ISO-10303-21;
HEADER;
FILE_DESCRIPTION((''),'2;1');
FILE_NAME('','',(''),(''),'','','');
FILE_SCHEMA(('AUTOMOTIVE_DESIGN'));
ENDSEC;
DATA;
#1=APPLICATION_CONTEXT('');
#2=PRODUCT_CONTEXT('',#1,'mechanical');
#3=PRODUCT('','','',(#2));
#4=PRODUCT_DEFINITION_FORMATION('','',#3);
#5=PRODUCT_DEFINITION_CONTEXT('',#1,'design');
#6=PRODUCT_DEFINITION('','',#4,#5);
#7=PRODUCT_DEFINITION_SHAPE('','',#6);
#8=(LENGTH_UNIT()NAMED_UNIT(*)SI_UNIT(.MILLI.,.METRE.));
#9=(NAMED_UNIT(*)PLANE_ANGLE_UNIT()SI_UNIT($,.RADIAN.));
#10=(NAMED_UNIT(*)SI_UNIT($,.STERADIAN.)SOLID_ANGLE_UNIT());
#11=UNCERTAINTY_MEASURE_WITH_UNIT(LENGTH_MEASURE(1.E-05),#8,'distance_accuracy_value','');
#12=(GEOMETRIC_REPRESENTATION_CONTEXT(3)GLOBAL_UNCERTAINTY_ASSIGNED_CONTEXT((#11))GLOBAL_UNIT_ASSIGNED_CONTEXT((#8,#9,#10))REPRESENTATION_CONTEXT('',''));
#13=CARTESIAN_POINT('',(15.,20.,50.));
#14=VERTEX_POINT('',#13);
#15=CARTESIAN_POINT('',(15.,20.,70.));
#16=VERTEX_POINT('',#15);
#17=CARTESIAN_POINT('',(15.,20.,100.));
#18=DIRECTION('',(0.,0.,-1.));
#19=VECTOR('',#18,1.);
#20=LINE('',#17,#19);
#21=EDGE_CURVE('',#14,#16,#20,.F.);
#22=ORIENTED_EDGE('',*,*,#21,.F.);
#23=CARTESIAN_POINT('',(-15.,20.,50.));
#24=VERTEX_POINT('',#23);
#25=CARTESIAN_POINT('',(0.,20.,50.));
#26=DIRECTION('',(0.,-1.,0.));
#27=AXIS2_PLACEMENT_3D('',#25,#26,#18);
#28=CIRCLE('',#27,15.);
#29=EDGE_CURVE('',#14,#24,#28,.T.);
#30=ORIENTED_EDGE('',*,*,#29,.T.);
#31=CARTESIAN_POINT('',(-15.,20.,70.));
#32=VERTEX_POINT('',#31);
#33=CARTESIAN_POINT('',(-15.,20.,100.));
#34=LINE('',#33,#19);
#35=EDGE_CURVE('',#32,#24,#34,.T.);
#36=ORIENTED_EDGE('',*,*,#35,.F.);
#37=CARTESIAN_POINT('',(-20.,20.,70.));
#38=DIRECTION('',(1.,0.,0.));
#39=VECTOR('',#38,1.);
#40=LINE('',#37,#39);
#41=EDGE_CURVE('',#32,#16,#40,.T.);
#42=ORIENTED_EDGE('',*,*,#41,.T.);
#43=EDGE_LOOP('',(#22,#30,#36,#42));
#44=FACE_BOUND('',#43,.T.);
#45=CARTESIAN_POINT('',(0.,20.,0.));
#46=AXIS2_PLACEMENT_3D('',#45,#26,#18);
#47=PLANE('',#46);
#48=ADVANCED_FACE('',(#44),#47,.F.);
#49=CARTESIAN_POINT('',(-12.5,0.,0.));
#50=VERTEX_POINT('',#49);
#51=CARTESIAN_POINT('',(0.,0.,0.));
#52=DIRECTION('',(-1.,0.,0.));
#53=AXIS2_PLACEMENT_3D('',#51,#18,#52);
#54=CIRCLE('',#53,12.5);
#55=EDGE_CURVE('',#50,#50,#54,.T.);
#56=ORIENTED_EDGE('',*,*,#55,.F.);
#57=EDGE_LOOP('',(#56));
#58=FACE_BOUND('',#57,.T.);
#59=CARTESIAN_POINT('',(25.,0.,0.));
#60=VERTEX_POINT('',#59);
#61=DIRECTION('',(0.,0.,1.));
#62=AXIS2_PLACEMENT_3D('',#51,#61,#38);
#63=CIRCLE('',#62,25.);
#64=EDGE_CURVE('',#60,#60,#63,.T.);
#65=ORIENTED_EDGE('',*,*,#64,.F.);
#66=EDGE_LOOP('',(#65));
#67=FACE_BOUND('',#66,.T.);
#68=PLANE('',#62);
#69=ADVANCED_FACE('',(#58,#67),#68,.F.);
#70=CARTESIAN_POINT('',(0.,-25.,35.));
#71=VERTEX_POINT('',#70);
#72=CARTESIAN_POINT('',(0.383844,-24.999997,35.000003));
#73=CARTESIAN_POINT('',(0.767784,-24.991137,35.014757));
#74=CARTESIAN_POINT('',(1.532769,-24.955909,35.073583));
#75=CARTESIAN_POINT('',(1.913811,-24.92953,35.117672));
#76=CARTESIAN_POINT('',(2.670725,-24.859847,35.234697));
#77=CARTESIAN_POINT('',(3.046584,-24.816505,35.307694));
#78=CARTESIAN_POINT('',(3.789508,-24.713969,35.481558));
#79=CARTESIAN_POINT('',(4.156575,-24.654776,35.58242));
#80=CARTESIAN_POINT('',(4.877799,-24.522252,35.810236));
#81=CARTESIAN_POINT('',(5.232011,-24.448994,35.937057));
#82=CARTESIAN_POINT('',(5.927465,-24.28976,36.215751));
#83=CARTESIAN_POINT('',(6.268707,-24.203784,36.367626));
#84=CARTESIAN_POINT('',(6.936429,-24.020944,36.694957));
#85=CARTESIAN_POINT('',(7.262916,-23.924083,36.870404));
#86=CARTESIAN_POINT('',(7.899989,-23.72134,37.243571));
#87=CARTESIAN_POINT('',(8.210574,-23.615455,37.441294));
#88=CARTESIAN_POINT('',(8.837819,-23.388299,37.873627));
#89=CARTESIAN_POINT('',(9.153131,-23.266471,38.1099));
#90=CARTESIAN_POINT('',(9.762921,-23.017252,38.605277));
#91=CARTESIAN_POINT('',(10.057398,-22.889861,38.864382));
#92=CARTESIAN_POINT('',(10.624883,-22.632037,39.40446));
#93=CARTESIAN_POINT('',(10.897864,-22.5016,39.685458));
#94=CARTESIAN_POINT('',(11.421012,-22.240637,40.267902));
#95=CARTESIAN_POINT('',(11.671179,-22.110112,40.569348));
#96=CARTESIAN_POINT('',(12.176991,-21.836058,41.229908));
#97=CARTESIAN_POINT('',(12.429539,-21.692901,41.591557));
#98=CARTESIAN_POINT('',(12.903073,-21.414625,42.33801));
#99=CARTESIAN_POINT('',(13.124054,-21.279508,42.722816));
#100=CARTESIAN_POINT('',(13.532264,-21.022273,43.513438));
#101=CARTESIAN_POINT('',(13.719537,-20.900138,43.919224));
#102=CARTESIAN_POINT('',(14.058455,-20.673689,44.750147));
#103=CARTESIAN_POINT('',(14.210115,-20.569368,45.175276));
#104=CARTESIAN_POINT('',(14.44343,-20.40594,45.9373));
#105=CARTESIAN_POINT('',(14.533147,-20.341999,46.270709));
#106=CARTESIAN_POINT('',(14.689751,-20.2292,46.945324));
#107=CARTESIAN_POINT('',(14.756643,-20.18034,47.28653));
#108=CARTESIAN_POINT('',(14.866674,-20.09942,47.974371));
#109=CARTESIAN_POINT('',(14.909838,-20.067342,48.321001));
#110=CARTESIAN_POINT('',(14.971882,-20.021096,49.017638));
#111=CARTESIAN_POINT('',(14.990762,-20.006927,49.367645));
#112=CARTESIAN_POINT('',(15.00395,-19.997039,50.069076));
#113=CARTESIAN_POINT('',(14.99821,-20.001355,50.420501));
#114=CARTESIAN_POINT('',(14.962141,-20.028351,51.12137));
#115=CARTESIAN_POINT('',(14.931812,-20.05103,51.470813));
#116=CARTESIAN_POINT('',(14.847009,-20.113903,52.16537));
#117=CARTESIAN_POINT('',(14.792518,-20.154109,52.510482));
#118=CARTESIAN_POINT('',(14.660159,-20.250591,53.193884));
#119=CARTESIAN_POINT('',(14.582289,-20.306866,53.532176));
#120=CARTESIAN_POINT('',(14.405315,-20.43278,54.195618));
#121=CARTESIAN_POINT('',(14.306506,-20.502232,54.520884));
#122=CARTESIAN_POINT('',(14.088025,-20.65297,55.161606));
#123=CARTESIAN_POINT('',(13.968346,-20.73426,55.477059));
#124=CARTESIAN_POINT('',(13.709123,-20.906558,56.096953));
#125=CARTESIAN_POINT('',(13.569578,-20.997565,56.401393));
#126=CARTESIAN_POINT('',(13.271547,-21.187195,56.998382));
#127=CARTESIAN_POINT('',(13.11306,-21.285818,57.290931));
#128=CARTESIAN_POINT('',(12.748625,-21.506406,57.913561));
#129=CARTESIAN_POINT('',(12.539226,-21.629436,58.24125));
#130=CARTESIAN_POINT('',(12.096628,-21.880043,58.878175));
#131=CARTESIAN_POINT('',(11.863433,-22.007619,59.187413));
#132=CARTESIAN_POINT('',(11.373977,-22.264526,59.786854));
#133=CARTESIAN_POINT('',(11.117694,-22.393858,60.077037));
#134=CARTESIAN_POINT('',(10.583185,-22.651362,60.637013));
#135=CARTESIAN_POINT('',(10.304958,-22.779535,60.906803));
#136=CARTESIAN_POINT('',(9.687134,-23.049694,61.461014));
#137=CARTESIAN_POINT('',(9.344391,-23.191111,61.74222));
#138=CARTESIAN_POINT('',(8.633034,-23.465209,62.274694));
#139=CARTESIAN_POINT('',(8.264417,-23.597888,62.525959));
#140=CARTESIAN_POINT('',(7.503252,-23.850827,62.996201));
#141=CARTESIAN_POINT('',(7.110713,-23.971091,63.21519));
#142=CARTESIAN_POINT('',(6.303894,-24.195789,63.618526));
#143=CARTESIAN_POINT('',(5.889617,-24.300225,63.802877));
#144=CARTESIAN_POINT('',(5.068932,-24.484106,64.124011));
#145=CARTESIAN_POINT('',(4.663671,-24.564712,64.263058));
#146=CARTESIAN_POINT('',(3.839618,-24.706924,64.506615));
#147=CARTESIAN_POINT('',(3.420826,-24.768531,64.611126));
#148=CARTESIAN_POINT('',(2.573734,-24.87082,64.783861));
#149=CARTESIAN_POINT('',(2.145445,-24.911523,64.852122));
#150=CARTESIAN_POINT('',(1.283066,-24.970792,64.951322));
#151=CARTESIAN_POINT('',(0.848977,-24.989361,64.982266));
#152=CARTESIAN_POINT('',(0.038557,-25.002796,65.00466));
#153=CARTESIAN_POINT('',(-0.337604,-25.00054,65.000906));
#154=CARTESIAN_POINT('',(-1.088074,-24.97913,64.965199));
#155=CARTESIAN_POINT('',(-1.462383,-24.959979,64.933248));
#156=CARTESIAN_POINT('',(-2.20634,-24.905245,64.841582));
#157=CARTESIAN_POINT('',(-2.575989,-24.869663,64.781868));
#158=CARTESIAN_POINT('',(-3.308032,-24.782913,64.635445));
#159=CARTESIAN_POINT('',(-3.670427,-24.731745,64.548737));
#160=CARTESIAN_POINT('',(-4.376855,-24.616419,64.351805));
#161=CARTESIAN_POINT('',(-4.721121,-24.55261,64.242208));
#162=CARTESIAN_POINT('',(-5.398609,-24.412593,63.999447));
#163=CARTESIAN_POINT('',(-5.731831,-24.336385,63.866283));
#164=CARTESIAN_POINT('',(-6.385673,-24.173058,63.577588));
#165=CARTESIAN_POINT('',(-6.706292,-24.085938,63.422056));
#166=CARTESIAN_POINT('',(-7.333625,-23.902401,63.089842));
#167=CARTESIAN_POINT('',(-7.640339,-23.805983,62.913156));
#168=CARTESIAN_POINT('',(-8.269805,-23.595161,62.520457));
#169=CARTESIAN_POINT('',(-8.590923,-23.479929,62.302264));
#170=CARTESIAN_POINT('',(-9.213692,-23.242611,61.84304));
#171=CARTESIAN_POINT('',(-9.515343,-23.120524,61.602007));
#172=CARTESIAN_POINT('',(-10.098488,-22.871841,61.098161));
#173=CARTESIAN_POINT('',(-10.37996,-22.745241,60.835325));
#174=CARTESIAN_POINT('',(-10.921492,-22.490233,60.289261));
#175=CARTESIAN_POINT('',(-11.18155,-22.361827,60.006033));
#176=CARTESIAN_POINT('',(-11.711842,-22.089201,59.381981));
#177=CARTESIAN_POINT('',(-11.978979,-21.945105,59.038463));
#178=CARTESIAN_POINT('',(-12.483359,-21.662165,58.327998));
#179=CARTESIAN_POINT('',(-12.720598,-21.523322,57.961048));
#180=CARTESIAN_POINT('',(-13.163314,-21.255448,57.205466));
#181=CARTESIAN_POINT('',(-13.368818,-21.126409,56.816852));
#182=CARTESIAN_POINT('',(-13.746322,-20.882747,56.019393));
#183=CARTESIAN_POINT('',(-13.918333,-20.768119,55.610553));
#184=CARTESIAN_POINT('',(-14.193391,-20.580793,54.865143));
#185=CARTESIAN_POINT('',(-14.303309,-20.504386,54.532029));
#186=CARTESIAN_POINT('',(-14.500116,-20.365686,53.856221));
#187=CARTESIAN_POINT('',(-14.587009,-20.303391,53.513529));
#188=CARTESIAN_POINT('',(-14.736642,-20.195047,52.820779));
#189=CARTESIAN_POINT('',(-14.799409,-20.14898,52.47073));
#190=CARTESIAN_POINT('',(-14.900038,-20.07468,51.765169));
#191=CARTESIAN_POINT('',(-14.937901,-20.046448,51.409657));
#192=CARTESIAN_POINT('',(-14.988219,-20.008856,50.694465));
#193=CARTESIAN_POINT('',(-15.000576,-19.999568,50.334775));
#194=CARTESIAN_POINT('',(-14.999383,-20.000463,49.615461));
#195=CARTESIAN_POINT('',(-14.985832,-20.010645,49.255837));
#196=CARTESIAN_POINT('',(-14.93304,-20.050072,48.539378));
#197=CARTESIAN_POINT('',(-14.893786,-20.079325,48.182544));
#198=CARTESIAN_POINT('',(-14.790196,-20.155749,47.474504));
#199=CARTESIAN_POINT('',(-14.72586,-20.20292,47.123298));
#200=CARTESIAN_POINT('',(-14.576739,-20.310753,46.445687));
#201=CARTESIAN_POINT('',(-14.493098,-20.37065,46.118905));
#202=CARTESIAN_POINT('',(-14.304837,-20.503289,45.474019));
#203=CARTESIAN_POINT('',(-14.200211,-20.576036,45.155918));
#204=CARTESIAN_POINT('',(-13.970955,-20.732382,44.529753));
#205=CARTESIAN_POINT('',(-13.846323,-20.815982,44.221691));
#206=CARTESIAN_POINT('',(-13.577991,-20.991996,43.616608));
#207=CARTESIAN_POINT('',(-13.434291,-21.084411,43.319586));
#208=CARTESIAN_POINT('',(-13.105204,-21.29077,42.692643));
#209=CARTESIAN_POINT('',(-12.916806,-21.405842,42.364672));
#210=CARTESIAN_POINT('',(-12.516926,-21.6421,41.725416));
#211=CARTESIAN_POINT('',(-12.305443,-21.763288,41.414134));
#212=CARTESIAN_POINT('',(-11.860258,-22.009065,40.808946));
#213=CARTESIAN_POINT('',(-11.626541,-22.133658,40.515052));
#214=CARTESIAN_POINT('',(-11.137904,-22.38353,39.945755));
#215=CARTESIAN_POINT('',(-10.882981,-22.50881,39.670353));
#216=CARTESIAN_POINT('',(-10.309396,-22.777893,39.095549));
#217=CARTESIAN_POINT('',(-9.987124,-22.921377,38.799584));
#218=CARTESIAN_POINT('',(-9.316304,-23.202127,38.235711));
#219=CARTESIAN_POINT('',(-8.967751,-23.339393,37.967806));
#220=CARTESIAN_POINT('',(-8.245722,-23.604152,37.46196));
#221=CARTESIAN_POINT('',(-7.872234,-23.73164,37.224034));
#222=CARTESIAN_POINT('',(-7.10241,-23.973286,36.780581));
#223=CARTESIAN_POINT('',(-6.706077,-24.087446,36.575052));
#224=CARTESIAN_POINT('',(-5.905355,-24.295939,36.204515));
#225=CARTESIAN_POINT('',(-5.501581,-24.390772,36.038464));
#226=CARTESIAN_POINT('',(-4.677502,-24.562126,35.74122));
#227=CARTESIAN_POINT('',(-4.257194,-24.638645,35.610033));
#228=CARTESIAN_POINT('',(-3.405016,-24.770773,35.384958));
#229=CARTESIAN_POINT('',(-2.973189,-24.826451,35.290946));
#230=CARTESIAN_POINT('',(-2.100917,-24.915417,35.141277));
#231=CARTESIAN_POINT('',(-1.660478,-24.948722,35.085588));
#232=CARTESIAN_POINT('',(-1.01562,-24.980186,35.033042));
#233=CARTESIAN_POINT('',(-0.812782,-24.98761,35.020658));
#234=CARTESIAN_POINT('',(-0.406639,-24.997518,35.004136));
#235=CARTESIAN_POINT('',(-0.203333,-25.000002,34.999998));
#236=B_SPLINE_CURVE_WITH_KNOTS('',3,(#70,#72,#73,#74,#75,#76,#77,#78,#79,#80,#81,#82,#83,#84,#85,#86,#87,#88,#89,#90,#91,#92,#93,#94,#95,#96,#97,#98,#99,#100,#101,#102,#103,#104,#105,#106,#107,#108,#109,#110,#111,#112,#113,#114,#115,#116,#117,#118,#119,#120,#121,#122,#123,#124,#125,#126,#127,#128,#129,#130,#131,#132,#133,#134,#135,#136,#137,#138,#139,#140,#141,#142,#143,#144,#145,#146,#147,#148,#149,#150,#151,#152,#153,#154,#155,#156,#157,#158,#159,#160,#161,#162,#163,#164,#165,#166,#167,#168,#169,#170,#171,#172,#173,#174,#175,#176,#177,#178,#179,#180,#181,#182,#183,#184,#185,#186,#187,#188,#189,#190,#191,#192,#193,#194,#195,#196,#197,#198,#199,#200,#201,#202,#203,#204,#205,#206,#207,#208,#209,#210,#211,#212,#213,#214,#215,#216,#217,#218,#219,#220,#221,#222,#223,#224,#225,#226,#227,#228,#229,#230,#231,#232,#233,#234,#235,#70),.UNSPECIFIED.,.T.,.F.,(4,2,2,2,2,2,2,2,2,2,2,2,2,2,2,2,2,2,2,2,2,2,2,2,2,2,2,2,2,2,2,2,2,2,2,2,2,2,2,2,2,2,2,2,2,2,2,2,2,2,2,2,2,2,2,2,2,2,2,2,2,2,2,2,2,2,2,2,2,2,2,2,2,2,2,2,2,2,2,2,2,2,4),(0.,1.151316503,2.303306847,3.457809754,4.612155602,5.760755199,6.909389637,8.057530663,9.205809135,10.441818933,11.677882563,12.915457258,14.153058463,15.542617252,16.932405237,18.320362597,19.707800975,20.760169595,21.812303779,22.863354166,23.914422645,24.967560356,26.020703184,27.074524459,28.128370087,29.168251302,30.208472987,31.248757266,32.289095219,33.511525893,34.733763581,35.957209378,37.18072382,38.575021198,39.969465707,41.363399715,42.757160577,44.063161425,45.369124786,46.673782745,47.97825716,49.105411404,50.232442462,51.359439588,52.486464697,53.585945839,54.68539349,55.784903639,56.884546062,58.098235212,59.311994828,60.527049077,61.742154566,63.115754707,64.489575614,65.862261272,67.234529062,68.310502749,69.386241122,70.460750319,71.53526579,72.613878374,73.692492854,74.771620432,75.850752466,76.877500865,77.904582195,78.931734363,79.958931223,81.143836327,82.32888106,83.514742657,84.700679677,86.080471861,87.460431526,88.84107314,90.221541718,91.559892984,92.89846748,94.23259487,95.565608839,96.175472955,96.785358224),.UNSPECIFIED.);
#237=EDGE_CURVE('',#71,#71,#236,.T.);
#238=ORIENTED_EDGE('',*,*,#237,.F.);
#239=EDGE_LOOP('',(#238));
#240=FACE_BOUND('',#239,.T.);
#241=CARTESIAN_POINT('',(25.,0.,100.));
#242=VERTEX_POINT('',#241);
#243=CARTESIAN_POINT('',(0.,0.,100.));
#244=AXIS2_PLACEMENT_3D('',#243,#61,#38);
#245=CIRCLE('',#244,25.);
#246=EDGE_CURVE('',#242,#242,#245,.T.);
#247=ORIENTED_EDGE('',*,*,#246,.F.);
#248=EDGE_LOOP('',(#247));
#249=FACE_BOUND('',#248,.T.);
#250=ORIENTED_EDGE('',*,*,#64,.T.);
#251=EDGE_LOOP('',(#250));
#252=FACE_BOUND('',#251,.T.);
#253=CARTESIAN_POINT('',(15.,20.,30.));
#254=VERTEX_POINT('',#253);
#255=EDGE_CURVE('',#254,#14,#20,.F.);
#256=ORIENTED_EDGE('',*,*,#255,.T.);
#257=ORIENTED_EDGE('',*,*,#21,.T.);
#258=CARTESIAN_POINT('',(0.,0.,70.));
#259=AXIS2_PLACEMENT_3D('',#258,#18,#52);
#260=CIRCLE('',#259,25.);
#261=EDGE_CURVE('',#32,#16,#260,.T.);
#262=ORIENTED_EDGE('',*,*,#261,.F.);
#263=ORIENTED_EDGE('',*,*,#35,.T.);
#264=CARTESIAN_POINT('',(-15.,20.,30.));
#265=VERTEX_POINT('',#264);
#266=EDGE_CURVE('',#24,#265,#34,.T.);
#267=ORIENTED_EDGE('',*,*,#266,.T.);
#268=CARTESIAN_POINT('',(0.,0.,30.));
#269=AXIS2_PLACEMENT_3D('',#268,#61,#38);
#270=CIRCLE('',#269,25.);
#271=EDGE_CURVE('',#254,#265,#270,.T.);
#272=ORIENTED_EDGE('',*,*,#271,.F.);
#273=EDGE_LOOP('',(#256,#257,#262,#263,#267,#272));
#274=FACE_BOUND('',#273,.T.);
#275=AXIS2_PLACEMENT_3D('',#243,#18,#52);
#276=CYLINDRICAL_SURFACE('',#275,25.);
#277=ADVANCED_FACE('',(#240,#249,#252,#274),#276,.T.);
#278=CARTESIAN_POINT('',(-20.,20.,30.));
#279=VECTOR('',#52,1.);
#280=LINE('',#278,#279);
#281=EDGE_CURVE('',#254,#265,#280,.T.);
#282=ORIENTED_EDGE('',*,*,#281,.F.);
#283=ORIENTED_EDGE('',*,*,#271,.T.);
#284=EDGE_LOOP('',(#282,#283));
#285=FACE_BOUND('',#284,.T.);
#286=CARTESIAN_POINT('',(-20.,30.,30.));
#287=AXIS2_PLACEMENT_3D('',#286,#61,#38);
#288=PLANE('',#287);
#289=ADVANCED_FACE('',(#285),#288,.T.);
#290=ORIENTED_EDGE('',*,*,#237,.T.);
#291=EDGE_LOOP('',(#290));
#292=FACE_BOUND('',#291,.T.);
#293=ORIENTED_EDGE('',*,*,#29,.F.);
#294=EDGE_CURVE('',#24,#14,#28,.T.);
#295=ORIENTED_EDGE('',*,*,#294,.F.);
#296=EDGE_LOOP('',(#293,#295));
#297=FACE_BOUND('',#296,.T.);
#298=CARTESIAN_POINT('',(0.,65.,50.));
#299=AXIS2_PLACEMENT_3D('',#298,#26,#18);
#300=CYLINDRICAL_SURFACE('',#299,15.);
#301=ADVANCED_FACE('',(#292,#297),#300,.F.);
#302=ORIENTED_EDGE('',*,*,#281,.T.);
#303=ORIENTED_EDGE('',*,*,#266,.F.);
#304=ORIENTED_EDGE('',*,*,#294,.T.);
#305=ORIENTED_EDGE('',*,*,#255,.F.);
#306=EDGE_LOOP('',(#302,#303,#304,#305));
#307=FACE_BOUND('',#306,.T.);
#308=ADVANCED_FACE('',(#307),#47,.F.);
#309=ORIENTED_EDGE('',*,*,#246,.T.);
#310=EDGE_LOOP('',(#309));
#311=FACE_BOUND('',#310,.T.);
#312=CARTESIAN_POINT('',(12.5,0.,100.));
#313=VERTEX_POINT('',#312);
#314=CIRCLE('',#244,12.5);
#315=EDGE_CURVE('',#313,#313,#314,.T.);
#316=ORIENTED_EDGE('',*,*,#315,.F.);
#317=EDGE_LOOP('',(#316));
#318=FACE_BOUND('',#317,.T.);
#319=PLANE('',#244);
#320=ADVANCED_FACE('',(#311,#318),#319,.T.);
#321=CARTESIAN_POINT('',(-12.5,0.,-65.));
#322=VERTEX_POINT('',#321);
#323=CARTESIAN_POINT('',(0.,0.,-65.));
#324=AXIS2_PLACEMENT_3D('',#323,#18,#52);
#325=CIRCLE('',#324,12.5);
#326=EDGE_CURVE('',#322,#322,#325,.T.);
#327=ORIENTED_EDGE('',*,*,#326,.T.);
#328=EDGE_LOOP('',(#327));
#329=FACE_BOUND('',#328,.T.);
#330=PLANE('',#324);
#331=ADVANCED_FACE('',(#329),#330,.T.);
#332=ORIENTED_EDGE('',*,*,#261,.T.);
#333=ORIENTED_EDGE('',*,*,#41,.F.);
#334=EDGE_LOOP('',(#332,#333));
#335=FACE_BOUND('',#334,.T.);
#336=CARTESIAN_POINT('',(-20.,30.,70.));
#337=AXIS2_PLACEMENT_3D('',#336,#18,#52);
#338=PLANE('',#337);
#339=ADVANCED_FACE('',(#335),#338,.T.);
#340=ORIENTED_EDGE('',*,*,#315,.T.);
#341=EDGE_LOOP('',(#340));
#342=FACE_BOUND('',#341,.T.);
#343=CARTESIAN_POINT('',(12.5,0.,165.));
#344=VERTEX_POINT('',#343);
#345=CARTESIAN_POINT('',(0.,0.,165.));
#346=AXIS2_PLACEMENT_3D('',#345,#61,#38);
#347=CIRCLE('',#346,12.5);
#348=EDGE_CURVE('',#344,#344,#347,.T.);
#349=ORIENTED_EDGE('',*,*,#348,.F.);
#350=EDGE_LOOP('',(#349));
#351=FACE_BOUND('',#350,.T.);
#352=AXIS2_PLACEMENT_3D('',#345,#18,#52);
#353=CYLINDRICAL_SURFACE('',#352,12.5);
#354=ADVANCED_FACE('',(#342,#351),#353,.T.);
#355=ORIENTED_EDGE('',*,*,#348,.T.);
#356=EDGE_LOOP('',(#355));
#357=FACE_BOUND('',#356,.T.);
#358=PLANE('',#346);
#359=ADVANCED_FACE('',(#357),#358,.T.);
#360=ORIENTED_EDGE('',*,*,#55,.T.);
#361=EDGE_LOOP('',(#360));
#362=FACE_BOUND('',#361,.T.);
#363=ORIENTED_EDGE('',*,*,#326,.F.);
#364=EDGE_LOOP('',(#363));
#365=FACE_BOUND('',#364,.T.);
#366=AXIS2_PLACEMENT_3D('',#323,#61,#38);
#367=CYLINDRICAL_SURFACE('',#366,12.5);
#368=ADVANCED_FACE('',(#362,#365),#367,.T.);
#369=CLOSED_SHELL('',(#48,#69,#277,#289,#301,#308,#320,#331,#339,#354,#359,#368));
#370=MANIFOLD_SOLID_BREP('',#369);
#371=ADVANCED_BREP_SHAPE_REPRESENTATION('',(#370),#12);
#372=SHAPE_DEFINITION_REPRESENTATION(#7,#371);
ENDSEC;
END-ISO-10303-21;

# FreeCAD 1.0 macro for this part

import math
import FreeCAD as App
import Part
import Sketcher

V = App.Vector
Q = App.Units.Quantity

doc = App.newDocument("Part")
body = doc.addObject("PartDesign::Body", "Body")

# Sketch on XY plane
sketch1 = body.newObject("Sketcher::SketchObject", "Sketch")
sketch1.AttachmentSupport = (doc.getObject("XY_Plane"), [""])
sketch1.MapMode = "FlatFace"
sketch1.addGeometry(Part.Circle(V(0, 0, 0), V(0, 0, 1), 25), False)
sketch1.addConstraint([
    Sketcher.Constraint("Coincident", 0, 3, -1, 1),
    Sketcher.Constraint("Diameter", 0, Q("50 mm")),
])
pad1 = body.newObject("PartDesign::Pad", "Pad")
pad1.Profile = sketch1
pad1.Length = 100

# Sketch on XY plane
sketch2 = body.newObject("Sketcher::SketchObject", "Sketch001")
sketch2.AttachmentSupport = (doc.getObject("XY_Plane"), [""])
sketch2.MapMode = "FlatFace"
sketch2.AttachmentOffset = App.Placement(V(0, 0, 100), App.Rotation())
sketch2.addGeometry(Part.Circle(V(0, 0, 0), V(0, 0, 1), 12), False)
sketch2.addConstraint([
    Sketcher.Constraint("Coincident", 0, 3, -1, 1),
    Sketcher.Constraint("Diameter", 0, Q("25 mm")),
])
pad2 = body.newObject("PartDesign::Pad", "Pad001")
pad2.Profile = sketch2
pad2.Length = 65

# Sketch on XY plane
sketch3 = body.newObject("Sketcher::SketchObject", "Sketch002")
sketch3.AttachmentSupport = (doc.getObject("XY_Plane"), [""])
sketch3.MapMode = "FlatFace"
sketch3.AttachmentOffset = App.Placement(V(0, 0, -65), App.Rotation())
sketch3.addGeometry(Part.Circle(V(0, 0, 0), V(0, 0, 1), 12), False)
sketch3.addConstraint([
    Sketcher.Constraint("Coincident", 0, 3, -1, 1),
    Sketcher.Constraint("Diameter", 0, Q("25 mm")),
])
pad3 = body.newObject("PartDesign::Pad", "Pad002")
pad3.Profile = sketch3
pad3.Length = 65

# Sketch on XZ plane
sketch4 = body.newObject("Sketcher::SketchObject", "Sketch003")
sketch4.AttachmentSupport = (doc.getObject("XZ_Plane"), [""])
sketch4.MapMode = "FlatFace"
sketch4.addGeometry([
    Part.ArcOfCircle(Part.Circle(V(0, 50, 0), V(0, 0, 1), 15), math.radians(-90), math.radians(0)),
    Part.ArcOfCircle(Part.Circle(V(0, 50, 0), V(0, 0, 1), 15), math.radians(90), math.radians(270)),
    Part.ArcOfCircle(Part.Circle(V(0, 50, 0), V(0, 0, 1), 15), math.radians(0), math.radians(90)),
], False)
sketch4.addConstraint([
    Sketcher.Constraint("Tangent", 0, 1, 1, 2),
    Sketcher.Constraint("Tangent", 1, 1, 2, 2),
    Sketcher.Constraint("Tangent", 2, 1, 0, 2),
    Sketcher.Constraint("PointOnObject", 0, 3, -2),
    Sketcher.Constraint("PointOnObject", 0, 1, -2),
    Sketcher.Constraint("PointOnObject", 1, 1, -2),
    Sketcher.Constraint("Horizontal", 1, 3, 2, 1),
    Sketcher.Constraint("Radius", 0, Q("15 mm")),
    Sketcher.Constraint("DistanceY", -1, 1, 0, 3, Q("50 mm")),
])
pocket1 = body.newObject("PartDesign::Pocket", "Pocket")
pocket1.Profile = sketch4
pocket1.Type = "ThroughAll"
pocket1.Midplane = True

# Sketch on XZ plane
sketch5 = body.newObject("Sketcher::SketchObject", "Sketch004")
sketch5.AttachmentSupport = (doc.getObject("XZ_Plane"), [""])
sketch5.MapMode = "FlatFace"
sketch5.AttachmentOffset = App.Placement(V(0, 0, -20), App.Rotation())
sketch5.addGeometry([
    Part.LineSegment(V(-20, 30, 0), V(-20, 70, 0)),
    Part.LineSegment(V(-20, 70, 0), V(20, 70, 0)),
    Part.LineSegment(V(20, 70, 0), V(20, 30, 0)),
    Part.LineSegment(V(20, 30, 0), V(-20, 30, 0)),
], False)
sketch5.addConstraint([
    Sketcher.Constraint("Coincident", 0, 2, 1, 1),
    Sketcher.Constraint("Coincident", 1, 2, 2, 1),
    Sketcher.Constraint("Coincident", 2, 2, 3, 1),
    Sketcher.Constraint("Coincident", 3, 2, 0, 1),
    Sketcher.Constraint("Vertical", 0),
    Sketcher.Constraint("Horizontal", 1),
    Sketcher.Constraint("Vertical", 2),
    Sketcher.Constraint("Horizontal", 3),
    Sketcher.Constraint("Equal", 3, 0),
    Sketcher.Constraint("DistanceX", 1, 1, 1, 2, Q("40 mm")),
    Sketcher.Constraint("DistanceX", 0, 2, -1, 1, Q("20 mm")),
    Sketcher.Constraint("DistanceY", -1, 1, 0, 2, Q("70 mm")),
])
pocket2 = body.newObject("PartDesign::Pocket", "Pocket001")
pocket2.Profile = sketch5
pocket2.Length = 10

doc.recompute()
